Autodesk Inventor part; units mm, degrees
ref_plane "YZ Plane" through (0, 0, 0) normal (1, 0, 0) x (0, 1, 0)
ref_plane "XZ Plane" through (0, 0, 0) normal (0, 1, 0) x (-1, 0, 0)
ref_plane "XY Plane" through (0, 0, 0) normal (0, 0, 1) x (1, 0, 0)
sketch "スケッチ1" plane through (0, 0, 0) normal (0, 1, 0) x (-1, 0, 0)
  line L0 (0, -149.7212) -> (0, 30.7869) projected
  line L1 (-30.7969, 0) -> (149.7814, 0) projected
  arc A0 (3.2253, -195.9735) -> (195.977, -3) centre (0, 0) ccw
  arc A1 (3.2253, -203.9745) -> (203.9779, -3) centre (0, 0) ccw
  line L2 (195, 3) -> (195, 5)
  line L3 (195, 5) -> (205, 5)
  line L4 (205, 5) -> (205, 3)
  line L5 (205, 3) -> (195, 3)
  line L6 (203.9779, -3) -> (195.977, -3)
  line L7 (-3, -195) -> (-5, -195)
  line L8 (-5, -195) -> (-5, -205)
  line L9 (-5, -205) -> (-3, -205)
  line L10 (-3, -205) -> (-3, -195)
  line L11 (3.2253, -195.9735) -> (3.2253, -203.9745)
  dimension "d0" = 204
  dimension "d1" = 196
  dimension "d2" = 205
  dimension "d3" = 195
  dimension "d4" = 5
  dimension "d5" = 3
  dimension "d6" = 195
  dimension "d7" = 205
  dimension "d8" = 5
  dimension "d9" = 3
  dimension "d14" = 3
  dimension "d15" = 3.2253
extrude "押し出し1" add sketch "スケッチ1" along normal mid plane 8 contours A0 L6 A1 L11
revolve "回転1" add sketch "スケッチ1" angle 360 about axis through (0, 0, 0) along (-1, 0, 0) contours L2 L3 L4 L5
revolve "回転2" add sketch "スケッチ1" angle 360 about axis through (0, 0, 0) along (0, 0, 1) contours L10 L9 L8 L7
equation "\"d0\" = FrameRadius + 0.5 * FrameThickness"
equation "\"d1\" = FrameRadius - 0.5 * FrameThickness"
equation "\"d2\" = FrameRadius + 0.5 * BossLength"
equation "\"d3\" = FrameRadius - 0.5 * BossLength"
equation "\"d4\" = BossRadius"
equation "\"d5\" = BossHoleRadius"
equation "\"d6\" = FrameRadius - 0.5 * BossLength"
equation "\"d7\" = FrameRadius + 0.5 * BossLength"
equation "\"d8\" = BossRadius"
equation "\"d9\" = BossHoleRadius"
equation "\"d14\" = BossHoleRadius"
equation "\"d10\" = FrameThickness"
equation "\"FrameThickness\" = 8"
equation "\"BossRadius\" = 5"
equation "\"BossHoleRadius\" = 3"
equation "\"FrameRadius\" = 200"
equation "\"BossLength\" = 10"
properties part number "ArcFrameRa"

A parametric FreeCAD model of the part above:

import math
import FreeCAD as App
import Part
import Sketcher
from FreeCAD import Vector
Q = App.Units.Quantity

doc = App.newDocument("Part")
body = doc.addObject("PartDesign::Body", "Body")

# Sketch on XZ plane
sketch1 = body.newObject("Sketcher::SketchObject", "Sketch")
sketch1.AttachmentSupport = (doc.getObject("XZ_Plane"), [""])
sketch1.MapMode = "FlatFace"
sketch1.addGeometry(Part.ArcOfCircle(Part.Circle(Vector(0, 0, 0), Vector(0, 0, 1), 196), math.radians(-179), math.radians(-91)), False)
sketch1.addGeometry(Part.LineSegment(Vector(-3, -196, 0), Vector(-3, -204, 0)), False)
sketch1.addGeometry(Part.ArcOfCircle(Part.Circle(Vector(0, 0, 0), Vector(0, 0, 1), 204), math.radians(-179), math.radians(-91)), False)
sketch1.addGeometry(Part.LineSegment(Vector(-204, -3, 0), Vector(-196, -3, 0)), False)
sketch1.addConstraint(Sketcher.Constraint("Coincident", 0, 2, 1, 1))
sketch1.addConstraint(Sketcher.Constraint("Coincident", 1, 2, 2, 2))
sketch1.addConstraint(Sketcher.Constraint("Coincident", 2, 1, 3, 1))
sketch1.addConstraint(Sketcher.Constraint("Coincident", 3, 2, 0, 1))
sketch1.addConstraint(Sketcher.Constraint("Vertical", 1))
sketch1.addConstraint(Sketcher.Constraint("Horizontal", 3))
sketch1.addConstraint(Sketcher.Constraint("Coincident", 0, 3, -1, 1))
sketch1.addConstraint(Sketcher.Constraint("Coincident", 2, 3, -1, 1))
sketch1.addConstraint(Sketcher.Constraint("Radius", 0, Q("196 mm")))
sketch1.addConstraint(Sketcher.Constraint("Radius", 2, Q("204 mm")))
sketch1.addConstraint(Sketcher.Constraint("DistanceY", 2, 1, -1, 1, Q("3 mm")))
sketch1.addConstraint(Sketcher.Constraint("DistanceX", 0, 2, -1, 1, Q("3.2253 mm")))
pad1 = body.newObject("PartDesign::Pad", "Pad")
pad1.Profile = sketch1
pad1.Length = 8
pad1.Midplane = True

# Sketch on XZ plane
sketch2 = body.newObject("Sketcher::SketchObject", "Sketch001")
sketch2.AttachmentSupport = (doc.getObject("XZ_Plane"), [""])
sketch2.MapMode = "FlatFace"
sketch2.addGeometry(Part.LineSegment(Vector(-195, 5, 0), Vector(-195, 3, 0)), False)
sketch2.addGeometry(Part.LineSegment(Vector(-195, 3, 0), Vector(-205, 3, 0)), False)
sketch2.addGeometry(Part.LineSegment(Vector(-205, 3, 0), Vector(-205, 5, 0)), False)
sketch2.addGeometry(Part.LineSegment(Vector(-205, 5, 0), Vector(-195, 5, 0)), False)
sketch2.addConstraint(Sketcher.Constraint("Coincident", 0, 2, 1, 1))
sketch2.addConstraint(Sketcher.Constraint("Coincident", 1, 2, 2, 1))
sketch2.addConstraint(Sketcher.Constraint("Coincident", 2, 2, 3, 1))
sketch2.addConstraint(Sketcher.Constraint("Coincident", 3, 2, 0, 1))
sketch2.addConstraint(Sketcher.Constraint("Vertical", 0))
sketch2.addConstraint(Sketcher.Constraint("Horizontal", 1))
sketch2.addConstraint(Sketcher.Constraint("Vertical", 2))
sketch2.addConstraint(Sketcher.Constraint("Horizontal", 3))
sketch2.addConstraint(Sketcher.Constraint("DistanceX", 0, 2, -1, 1, Q("195 mm")))
sketch2.addConstraint(Sketcher.Constraint("DistanceY", -1, 1, 0, 2, Q("3 mm")))
sketch2.addConstraint(Sketcher.Constraint("DistanceX", 1, 2, -1, 1, Q("205 mm")))
sketch2.addConstraint(Sketcher.Constraint("DistanceY", -1, 1, 2, 2, Q("5 mm")))
revolution = body.newObject("PartDesign::Revolution", "Revolution")
revolution.Profile = sketch2
revolution.ReferenceAxis = (sketch2, ["H_Axis"])
revolution.Angle = 360

# Sketch on XZ plane
sketch3 = body.newObject("Sketcher::SketchObject", "Sketch002")
sketch3.AttachmentSupport = (doc.getObject("XZ_Plane"), [""])
sketch3.MapMode = "FlatFace"
sketch3.addGeometry(Part.LineSegment(Vector(3, -205, 0), Vector(3, -195, 0)), False)
sketch3.addGeometry(Part.LineSegment(Vector(3, -195, 0), Vector(5, -195, 0)), False)
sketch3.addGeometry(Part.LineSegment(Vector(5, -195, 0), Vector(5, -205, 0)), False)
sketch3.addGeometry(Part.LineSegment(Vector(5, -205, 0), Vector(3, -205, 0)), False)
sketch3.addConstraint(Sketcher.Constraint("Coincident", 0, 2, 1, 1))
sketch3.addConstraint(Sketcher.Constraint("Coincident", 1, 2, 2, 1))
sketch3.addConstraint(Sketcher.Constraint("Coincident", 2, 2, 3, 1))
sketch3.addConstraint(Sketcher.Constraint("Coincident", 3, 2, 0, 1))
sketch3.addConstraint(Sketcher.Constraint("Vertical", 0))
sketch3.addConstraint(Sketcher.Constraint("Horizontal", 1))
sketch3.addConstraint(Sketcher.Constraint("Vertical", 2))
sketch3.addConstraint(Sketcher.Constraint("Horizontal", 3))
sketch3.addConstraint(Sketcher.Constraint("DistanceX", -1, 1, 0, 2, Q("3 mm")))
sketch3.addConstraint(Sketcher.Constraint("DistanceY", 0, 2, -1, 1, Q("195 mm")))
sketch3.addConstraint(Sketcher.Constraint("DistanceX", -1, 1, 1, 2, Q("5 mm")))
sketch3.addConstraint(Sketcher.Constraint("DistanceY", 2, 2, -1, 1, Q("205 mm")))
revolution2 = body.newObject("PartDesign::Revolution", "Revolution001")
revolution2.Profile = sketch3
revolution2.ReferenceAxis = (sketch3, ["V_Axis"])
revolution2.Angle = 360

doc.recompute()
